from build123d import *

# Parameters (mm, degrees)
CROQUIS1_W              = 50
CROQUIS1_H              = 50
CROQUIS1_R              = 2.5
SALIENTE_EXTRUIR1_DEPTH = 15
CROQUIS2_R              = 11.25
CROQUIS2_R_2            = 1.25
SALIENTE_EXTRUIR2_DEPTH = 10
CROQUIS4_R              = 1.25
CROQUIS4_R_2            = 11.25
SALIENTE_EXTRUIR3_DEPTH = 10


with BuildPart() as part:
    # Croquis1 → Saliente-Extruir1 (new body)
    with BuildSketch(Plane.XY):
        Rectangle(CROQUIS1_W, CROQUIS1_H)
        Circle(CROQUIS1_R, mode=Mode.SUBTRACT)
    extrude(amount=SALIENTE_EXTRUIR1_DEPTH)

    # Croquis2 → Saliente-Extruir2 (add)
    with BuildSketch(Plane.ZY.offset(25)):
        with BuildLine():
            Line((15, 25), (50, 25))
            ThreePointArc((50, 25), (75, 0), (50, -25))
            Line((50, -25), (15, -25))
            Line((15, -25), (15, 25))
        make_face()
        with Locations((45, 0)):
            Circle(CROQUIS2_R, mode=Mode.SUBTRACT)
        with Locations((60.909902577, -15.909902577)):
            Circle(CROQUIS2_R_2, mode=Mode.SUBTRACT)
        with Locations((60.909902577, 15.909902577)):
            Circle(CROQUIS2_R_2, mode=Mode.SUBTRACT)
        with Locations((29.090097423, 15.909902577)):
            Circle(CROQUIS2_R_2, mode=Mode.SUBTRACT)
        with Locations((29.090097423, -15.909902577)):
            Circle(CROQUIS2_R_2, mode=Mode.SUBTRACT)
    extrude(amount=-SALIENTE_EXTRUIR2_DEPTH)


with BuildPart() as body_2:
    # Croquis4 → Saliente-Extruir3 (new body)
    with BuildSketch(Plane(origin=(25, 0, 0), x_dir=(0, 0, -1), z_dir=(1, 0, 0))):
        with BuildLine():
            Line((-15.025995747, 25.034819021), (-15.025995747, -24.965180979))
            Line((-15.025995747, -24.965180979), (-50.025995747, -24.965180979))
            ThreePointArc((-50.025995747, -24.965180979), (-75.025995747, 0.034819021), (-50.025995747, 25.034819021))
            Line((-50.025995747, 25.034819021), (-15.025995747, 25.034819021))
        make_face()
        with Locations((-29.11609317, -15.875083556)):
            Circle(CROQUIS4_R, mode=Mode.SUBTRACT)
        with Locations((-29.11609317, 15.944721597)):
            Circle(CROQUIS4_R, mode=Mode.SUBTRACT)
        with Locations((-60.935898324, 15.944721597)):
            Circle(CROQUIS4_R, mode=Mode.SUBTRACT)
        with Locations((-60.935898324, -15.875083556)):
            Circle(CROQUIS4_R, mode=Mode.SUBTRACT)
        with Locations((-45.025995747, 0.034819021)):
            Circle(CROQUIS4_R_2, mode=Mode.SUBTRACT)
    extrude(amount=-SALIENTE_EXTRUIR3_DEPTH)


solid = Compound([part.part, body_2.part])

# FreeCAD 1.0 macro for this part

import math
import FreeCAD as App
import Part
import Sketcher

V = App.Vector


def add_polygon(sketch, points):
    """Adds a closed chain of lines whose ends are joined by coincident constraints."""
    first, n = sketch.GeometryCount, len(points)
    for a, b in zip(points, points[1:] + points[:1]):
        sketch.addGeometry(Part.LineSegment(App.Vector(*a, 0), App.Vector(*b, 0)), False)
    for i in range(n):
        sketch.addConstraint(Sketcher.Constraint("Coincident", first + i, 2, first + (i + 1) % n, 1))

doc = App.newDocument("Part")
body = doc.addObject("PartDesign::Body", "Body")

sketch1 = doc.addObject("Sketcher::SketchObject", "Sketch")
body.addObject(sketch1)
sketch1.AttachmentSupport = (doc.XY_Plane, [""])
sketch1.MapMode = "FlatFace"
add_polygon(sketch1, [(-25, 25), (-25, -25), (25, -25), (25, 25)])
sketch1.addGeometry(Part.Circle(V(0, 0, 0), V(0, 0, 1), 2.5), False)
sketch1.addConstraint([
    Sketcher.Constraint("Vertical", 0),
    Sketcher.Constraint("Horizontal", 1),
    Sketcher.Constraint("Vertical", 2),
    Sketcher.Constraint("Horizontal", 3),
    Sketcher.Constraint("Coincident", 4, 3, -1, 1),
    Sketcher.Constraint("Symmetric", 0, 2, 2, 2, -1, 1),
    Sketcher.Constraint("Equal", 3, 0),
    Sketcher.Constraint("Diameter", 4, 5.0),
    Sketcher.Constraint("DistanceX", 1, 1, 1, 2, 50.0),
])
pad1 = doc.addObject("PartDesign::Pad", "Pad")
body.addObject(pad1)
pad1.Profile = sketch1
pad1.Length = 15

sketch2 = doc.addObject("Sketcher::SketchObject", "Sketch001")
body.addObject(sketch2)
sketch2.AttachmentSupport = (doc.YZ_Plane, [""])
sketch2.MapMode = "FlatFace"
sketch2.AttachmentOffset = App.Placement(V(0, 0, -25), App.Rotation())
sketch2.addGeometry([
    Part.LineSegment(V(25, 50, 0), V(25, 15, 0)),
    Part.LineSegment(V(25, 15, 0), V(-25, 15, 0)),
    Part.LineSegment(V(-25, 15, 0), V(-25, 50, 0)),
    Part.ArcOfCircle(Part.Circle(V(0, 50, 0), V(0, 0, 1), 25), math.radians(0), math.radians(180)),
    Part.Circle(V(-15.9, 60.9, 0), V(0, 0, 1), 1.2),
    Part.Circle(V(-15.9, 29.1, 0), V(0, 0, 1), 1.2),
    Part.Circle(V(0, 45, 0), V(0, 0, 1), 11.2),
    Part.Circle(V(15.9, 60.9, 0), V(0, 0, 1), 1.2),
    Part.Circle(V(15.9, 29.1, 0), V(0, 0, 1), 1.2),
], False)
sketch2.addConstraint([
    Sketcher.Constraint("Coincident", 0, 2, 1, 1),
    Sketcher.Constraint("Coincident", 1, 2, 2, 1),
    Sketcher.Constraint("Tangent", 2, 2, 3, 2),
    Sketcher.Constraint("Tangent", 3, 1, 0, 1),
    Sketcher.Constraint("Vertical", 0),
    Sketcher.Constraint("Horizontal", 1),
    Sketcher.Constraint("Vertical", 2),
    Sketcher.Constraint("Equal", 4, 5),
    Sketcher.Constraint("Equal", 5, 7),
    Sketcher.Constraint("Equal", 7, 8),
    Sketcher.Constraint("Symmetric", 4, 3, 7, 3, -2),
    Sketcher.Constraint("Symmetric", 5, 3, 8, 3, -2),
    Sketcher.Constraint("PointOnObject", 3, 3, -2),
    Sketcher.Constraint("PointOnObject", 6, 3, -2),
    Sketcher.Constraint("Vertical", 4, 3, 5, 3),
    Sketcher.Constraint("Radius", 3, 25.0),
    Sketcher.Constraint("Diameter", 4, 2.5),
    Sketcher.Constraint("Diameter", 6, 22.5),
    Sketcher.Constraint("DistanceY", 0, 2, 0, 1, 35.0),
    Sketcher.Constraint("DistanceY", -1, 1, 3, 3, 50.0),
    Sketcher.Constraint("DistanceY", -1, 1, 6, 3, 45.0),
    Sketcher.Constraint("DistanceX", 4, 3, -1, 1, 15.909903),
    Sketcher.Constraint("DistanceY", -1, 1, 4, 3, 60.909903),
    Sketcher.Constraint("DistanceY", -1, 1, 5, 3, 29.090097),
])
pad2 = doc.addObject("PartDesign::Pad", "Pad001")
body.addObject(pad2)
pad2.Profile = sketch2
pad2.Length = 10
body2 = doc.addObject("PartDesign::Body", "Body001")

sketch3 = doc.addObject("Sketcher::SketchObject", "Sketch002")
body2.addObject(sketch3)
sketch3.AttachmentSupport = (doc.getObject("YZ_Plane001"), [""])
sketch3.MapMode = "FlatFace"
sketch3.AttachmentOffset = App.Placement(V(0, 0, 25), App.Rotation())
sketch3.addGeometry([
    Part.LineSegment(V(-25, 15, 0), V(25, 15, 0)),
    Part.LineSegment(V(25, 15, 0), V(25, 50, 0)),
    Part.ArcOfCircle(Part.Circle(V(0, 50, 0), V(0, 0, 1), 25), math.radians(0), math.radians(180)),
    Part.LineSegment(V(-25, 50, 0), V(-25, 15, 0)),
    Part.Circle(V(-15.9, 29.1, 0), V(0, 0, 1), 1.2),
    Part.Circle(V(-15.9, 60.9, 0), V(0, 0, 1), 1.2),
    Part.Circle(V(15.9, 29.1, 0), V(0, 0, 1), 1.2),
    Part.Circle(V(0, 45, 0), V(0, 0, 1), 11.2),
    Part.Circle(V(15.9, 60.9, 0), V(0, 0, 1), 1.2),
], False)
sketch3.addConstraint([
    Sketcher.Constraint("Coincident", 0, 2, 1, 1),
    Sketcher.Constraint("Tangent", 1, 2, 2, 1),
    Sketcher.Constraint("Tangent", 2, 2, 3, 1),
    Sketcher.Constraint("Coincident", 3, 2, 0, 1),
    Sketcher.Constraint("Horizontal", 0),
    Sketcher.Constraint("Vertical", 1),
    Sketcher.Constraint("Vertical", 3),
    Sketcher.Constraint("Equal", 4, 5),
    Sketcher.Constraint("Equal", 5, 6),
    Sketcher.Constraint("Equal", 6, 8),
    Sketcher.Constraint("Horizontal", 4, 3, 6, 3),
    Sketcher.Constraint("Horizontal", 5, 3, 8, 3),
    Sketcher.Constraint("Vertical", 4, 3, 5, 3),
    Sketcher.Constraint("Vertical", 2, 3, 7, 3),
    Sketcher.Constraint("Vertical", 6, 3, 8, 3),
    Sketcher.Constraint("Radius", 2, 25.0),
    Sketcher.Constraint("Diameter", 4, 2.5),
    Sketcher.Constraint("Diameter", 7, 22.5),
    Sketcher.Constraint("DistanceY", 1, 1, 1, 2, 35.0),
    Sketcher.Constraint("DistanceY", 7, 3, 2, 3, 5.0),
    Sketcher.Constraint("DistanceY", -1, 1, 5, 3, 60.935898),
    Sketcher.Constraint("DistanceX", -1, 1, 2, 3, 0.034819),
    Sketcher.Constraint("DistanceX", -1, 1, 6, 3, 15.944722),
    Sketcher.Constraint("DistanceY", -1, 1, 2, 3, 50.025996),
    Sketcher.Constraint("DistanceX", 4, 3, -1, 1, 15.875084),
    Sketcher.Constraint("DistanceY", -1, 1, 4, 3, 29.116093),
])
pad3 = doc.addObject("PartDesign::Pad", "Pad002")
body2.addObject(pad3)
pad3.Profile = sketch3
pad3.Length = 10
pad3.Reversed = True

doc.recompute()
